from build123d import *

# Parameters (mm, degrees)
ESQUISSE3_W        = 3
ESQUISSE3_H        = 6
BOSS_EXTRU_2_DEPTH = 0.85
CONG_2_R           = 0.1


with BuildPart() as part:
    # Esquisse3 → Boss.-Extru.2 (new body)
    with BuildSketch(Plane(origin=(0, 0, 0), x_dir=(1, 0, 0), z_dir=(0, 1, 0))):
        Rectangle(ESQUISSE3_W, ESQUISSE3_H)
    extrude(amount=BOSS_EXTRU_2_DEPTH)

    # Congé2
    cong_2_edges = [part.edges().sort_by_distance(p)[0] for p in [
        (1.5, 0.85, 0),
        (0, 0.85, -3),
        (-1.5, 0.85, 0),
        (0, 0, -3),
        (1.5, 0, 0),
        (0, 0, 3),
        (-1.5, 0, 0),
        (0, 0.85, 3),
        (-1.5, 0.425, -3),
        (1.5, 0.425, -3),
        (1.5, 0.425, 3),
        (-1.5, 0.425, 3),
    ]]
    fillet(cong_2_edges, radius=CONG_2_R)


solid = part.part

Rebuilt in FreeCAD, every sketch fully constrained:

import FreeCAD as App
import Part
import Sketcher

V = App.Vector
Q = App.Units.Quantity


def add_polygon(sketch, points):
    """Adds a closed chain of lines whose ends are joined by coincident constraints."""
    first, n = sketch.GeometryCount, len(points)
    for a, b in zip(points, points[1:] + points[:1]):
        sketch.addGeometry(Part.LineSegment(App.Vector(*a, 0), App.Vector(*b, 0)), False)
    for i in range(n):
        sketch.addConstraint(Sketcher.Constraint("Coincident", first + i, 2, first + (i + 1) % n, 1))

doc = App.newDocument("Part")
body = doc.addObject("PartDesign::Body", "Body")

# Sketch on XZ plane
sketch1 = body.newObject("Sketcher::SketchObject", "Sketch")
sketch1.AttachmentSupport = (doc.getObject("XZ_Plane"), [""])
sketch1.MapMode = "FlatFace"
add_polygon(sketch1, [(-1.5, -3), (-1.5, 3), (1.5, 3), (1.5, -3)])  # lines 0-3
sketch1.addConstraint(Sketcher.Constraint("Vertical", 0))
sketch1.addConstraint(Sketcher.Constraint("Horizontal", 1))
sketch1.addConstraint(Sketcher.Constraint("Vertical", 2))
sketch1.addConstraint(Sketcher.Constraint("Horizontal", 3))
sketch1.addConstraint(Sketcher.Constraint("Symmetric", 0, 2, 2, 2, -1, 1))
sketch1.addConstraint(Sketcher.Constraint("DistanceX", 1, 1, 1, 2, Q("3 mm")))
sketch1.addConstraint(Sketcher.Constraint("DistanceY", 0, 1, 0, 2, Q("6 mm")))
pad1 = body.newObject("PartDesign::Pad", "Pad")
pad1.Profile = sketch1
pad1.Length = 0.85
pad1.Reversed = True
doc.recompute()

fillet = body.newObject("PartDesign::Fillet", "Fillet")
fillet.Base = (pad1, ["Edge1"])
fillet.UseAllEdges = True
fillet.Radius = 0.1

doc.recompute()
